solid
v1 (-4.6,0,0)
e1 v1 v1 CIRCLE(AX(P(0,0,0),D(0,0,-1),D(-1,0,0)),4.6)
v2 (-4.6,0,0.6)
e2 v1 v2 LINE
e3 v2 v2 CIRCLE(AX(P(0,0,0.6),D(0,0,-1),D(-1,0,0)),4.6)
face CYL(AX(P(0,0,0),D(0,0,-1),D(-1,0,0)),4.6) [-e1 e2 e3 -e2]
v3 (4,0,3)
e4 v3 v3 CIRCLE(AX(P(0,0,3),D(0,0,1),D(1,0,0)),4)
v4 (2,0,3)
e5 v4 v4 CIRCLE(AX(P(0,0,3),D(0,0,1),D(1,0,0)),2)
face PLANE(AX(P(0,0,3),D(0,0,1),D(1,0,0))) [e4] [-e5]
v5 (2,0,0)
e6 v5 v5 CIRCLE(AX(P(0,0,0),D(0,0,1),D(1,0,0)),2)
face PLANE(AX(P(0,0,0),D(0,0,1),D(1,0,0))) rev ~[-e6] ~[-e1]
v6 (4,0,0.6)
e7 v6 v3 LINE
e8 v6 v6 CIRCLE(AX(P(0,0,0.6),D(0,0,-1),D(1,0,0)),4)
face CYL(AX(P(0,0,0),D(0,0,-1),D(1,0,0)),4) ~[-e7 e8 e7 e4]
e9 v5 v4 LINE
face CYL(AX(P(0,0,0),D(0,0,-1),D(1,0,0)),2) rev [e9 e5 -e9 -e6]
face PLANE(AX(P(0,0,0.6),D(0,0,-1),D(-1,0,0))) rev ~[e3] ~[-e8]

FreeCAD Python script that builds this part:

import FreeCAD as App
import Part
import Sketcher
Q = App.Units.Quantity

doc = App.newDocument("Part")
body = doc.addObject("PartDesign::Body", "Body")

sketch1 = body.newObject("Sketcher::SketchObject", "Sketch")
sketch1.AttachmentSupport = (doc.getObject("XY_Plane"), [""])
sketch1.MapMode = "FlatFace"
sketch1.addGeometry([
    Part.Circle(App.Vector(0, 0, 0), App.Vector(0, 0, 1), 4),
    Part.Circle(App.Vector(0, 0, 0), App.Vector(0, 0, 1), 2),
], False)
sketch1.addConstraint([
    Sketcher.Constraint("Coincident", 0, 3, -1, 1),
    Sketcher.Constraint("Coincident", 1, 3, -1, 1),
    Sketcher.Constraint("Diameter", 0, Q("8 mm")),
    Sketcher.Constraint("Diameter", 1, Q("4 mm")),
])
pad1 = body.newObject("PartDesign::Pad", "Pad")
pad1.Profile = sketch1
pad1.Length = 3

sketch2 = body.newObject("Sketcher::SketchObject", "Sketch001")
sketch2.AttachmentSupport = (doc.getObject("XY_Plane"), [""])
sketch2.MapMode = "FlatFace"
sketch2.addGeometry([
    Part.Circle(App.Vector(0, 0, 0), App.Vector(0, 0, 1), 4.6),
    Part.Circle(App.Vector(0, 0, 0), App.Vector(0, 0, 1), 2),
], False)
sketch2.addConstraint([
    Sketcher.Constraint("Coincident", 0, 3, -1, 1),
    Sketcher.Constraint("Coincident", 1, 3, -1, 1),
    Sketcher.Constraint("Diameter", 0, Q("9.2 mm")),
    Sketcher.Constraint("Diameter", 1, Q("4 mm")),
])
pad2 = body.newObject("PartDesign::Pad", "Pad001")
pad2.Profile = sketch2
pad2.Length = 0.6

doc.recompute()
